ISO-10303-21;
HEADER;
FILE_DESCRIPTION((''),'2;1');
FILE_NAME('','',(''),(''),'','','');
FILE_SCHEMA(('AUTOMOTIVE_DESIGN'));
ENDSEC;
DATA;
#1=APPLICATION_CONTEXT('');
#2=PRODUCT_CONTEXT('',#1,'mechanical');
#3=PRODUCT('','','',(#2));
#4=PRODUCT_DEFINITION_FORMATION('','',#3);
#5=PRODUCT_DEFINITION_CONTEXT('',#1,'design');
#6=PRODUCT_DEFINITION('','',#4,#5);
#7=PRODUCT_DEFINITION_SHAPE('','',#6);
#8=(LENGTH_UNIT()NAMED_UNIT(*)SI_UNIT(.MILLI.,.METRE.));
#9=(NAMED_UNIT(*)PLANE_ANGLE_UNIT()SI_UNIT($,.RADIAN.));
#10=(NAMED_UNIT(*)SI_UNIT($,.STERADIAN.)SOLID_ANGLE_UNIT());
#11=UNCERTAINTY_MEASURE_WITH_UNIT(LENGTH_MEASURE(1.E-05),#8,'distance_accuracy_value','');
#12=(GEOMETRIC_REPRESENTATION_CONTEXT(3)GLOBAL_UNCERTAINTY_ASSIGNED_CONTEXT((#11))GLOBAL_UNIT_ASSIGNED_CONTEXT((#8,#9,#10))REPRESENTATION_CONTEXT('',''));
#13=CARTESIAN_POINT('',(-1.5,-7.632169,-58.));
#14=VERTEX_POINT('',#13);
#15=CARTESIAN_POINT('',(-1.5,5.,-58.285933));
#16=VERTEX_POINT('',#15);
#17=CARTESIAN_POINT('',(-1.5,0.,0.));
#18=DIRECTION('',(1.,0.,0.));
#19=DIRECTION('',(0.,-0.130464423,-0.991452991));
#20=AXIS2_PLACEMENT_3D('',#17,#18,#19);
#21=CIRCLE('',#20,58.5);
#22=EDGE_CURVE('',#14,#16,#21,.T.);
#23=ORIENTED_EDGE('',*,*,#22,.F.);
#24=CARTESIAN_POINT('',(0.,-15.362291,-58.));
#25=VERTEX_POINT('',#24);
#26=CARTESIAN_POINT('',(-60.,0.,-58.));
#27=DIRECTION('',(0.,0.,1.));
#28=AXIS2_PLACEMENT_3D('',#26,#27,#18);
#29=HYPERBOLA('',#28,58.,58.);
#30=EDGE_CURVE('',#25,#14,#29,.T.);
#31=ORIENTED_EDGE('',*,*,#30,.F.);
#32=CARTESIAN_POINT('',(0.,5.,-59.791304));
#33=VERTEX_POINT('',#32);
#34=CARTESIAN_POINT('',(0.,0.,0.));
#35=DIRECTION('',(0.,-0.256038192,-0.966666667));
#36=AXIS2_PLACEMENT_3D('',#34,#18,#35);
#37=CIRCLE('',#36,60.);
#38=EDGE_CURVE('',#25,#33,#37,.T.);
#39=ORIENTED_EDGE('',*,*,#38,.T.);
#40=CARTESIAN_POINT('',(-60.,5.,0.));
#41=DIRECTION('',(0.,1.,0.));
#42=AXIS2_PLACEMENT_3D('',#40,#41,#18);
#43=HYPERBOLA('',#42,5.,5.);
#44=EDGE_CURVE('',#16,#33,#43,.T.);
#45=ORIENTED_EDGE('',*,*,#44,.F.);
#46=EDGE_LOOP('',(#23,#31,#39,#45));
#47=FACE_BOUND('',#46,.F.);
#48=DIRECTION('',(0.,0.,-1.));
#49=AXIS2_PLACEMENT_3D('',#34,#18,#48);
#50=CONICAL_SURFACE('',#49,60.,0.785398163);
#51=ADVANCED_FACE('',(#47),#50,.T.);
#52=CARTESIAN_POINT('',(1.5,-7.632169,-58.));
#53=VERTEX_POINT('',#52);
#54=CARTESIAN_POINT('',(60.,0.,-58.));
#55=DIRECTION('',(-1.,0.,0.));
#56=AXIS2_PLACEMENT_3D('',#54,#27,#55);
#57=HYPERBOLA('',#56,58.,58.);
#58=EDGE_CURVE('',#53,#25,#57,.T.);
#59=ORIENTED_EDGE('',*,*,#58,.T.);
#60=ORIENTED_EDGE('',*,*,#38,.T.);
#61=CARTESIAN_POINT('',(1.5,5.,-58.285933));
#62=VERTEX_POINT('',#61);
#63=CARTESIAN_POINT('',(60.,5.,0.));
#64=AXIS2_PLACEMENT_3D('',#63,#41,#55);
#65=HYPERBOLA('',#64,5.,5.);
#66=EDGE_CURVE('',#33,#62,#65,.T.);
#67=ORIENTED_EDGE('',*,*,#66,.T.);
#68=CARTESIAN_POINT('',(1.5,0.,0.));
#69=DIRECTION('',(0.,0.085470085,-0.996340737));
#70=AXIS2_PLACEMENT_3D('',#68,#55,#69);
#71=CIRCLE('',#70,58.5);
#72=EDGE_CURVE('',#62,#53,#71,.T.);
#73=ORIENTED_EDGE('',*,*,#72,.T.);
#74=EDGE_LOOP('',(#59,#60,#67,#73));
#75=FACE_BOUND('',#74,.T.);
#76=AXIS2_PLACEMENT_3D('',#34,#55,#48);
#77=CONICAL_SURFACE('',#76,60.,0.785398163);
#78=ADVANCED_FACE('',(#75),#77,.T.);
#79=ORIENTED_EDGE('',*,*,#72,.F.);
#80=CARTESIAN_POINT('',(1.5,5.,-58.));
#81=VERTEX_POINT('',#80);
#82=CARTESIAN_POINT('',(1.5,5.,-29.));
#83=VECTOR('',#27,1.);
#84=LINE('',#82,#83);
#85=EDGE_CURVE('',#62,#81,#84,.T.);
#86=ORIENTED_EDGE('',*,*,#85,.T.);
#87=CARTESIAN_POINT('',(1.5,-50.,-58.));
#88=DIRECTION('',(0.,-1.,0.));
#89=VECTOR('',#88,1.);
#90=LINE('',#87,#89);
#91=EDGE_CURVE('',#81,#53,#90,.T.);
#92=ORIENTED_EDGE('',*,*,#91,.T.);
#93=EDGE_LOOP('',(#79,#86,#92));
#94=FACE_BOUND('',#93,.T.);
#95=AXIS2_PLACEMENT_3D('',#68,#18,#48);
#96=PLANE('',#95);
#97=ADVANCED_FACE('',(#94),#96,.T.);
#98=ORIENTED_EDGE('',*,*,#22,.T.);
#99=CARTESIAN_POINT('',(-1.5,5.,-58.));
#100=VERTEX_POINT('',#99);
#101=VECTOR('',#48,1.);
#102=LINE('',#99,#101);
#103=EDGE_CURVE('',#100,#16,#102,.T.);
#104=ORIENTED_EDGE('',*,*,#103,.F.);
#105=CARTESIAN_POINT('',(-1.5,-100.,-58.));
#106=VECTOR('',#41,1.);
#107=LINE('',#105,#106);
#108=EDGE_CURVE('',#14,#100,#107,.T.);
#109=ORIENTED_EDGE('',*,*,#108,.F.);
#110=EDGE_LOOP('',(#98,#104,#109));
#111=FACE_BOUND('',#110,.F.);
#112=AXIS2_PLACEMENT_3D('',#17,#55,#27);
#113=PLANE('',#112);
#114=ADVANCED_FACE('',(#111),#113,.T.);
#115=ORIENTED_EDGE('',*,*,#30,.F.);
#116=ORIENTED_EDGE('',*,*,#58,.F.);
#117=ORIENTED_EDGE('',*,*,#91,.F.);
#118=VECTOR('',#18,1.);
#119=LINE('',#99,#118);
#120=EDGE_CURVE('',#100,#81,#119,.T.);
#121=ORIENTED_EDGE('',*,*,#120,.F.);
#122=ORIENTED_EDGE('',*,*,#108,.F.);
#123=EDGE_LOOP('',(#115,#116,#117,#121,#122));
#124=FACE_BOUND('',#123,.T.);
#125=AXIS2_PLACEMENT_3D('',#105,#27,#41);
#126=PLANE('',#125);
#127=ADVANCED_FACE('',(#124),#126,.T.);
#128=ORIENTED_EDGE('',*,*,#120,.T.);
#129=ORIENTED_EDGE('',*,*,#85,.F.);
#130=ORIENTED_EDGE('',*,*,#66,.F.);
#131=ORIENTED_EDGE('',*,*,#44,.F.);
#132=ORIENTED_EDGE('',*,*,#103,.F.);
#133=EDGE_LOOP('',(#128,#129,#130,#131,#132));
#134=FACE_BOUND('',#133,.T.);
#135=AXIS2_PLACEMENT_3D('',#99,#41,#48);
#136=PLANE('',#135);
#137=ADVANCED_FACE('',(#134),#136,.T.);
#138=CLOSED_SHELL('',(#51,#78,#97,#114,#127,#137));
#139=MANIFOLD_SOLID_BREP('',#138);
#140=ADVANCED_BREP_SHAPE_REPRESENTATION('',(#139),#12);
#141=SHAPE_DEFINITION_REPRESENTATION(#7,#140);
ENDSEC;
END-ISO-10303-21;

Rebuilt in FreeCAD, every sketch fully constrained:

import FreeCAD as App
import Part
import Sketcher
Q = App.Units.Quantity

doc = App.newDocument("Part")
body = doc.addObject("PartDesign::Body", "Body")

sketch1 = body.newObject("Sketcher::SketchObject", "Sketch")
sketch1.AttachmentSupport = (doc.getObject("XZ_Plane"), [""])
sketch1.MapMode = "FlatFace"
sketch1.addGeometry([
    Part.LineSegment(App.Vector(0, 0, 0), App.Vector(0, -60, 0)),
    Part.LineSegment(App.Vector(0, -60, 0), App.Vector(1.5, -58.5, 0)),
    Part.LineSegment(App.Vector(1.5, -58.5, 0), App.Vector(1.5, 0, 0)),
    Part.LineSegment(App.Vector(1.5, 0, 0), App.Vector(0, 0, 0)),
], False)
sketch1.addConstraint([
    Sketcher.Constraint("Coincident", 0, 2, 1, 1),
    Sketcher.Constraint("Coincident", 1, 2, 2, 1),
    Sketcher.Constraint("Coincident", 2, 2, 3, 1),
    Sketcher.Constraint("Coincident", 3, 2, 0, 1),
    Sketcher.Constraint("Vertical", 0),
    Sketcher.Constraint("Vertical", 2),
    Sketcher.Constraint("Horizontal", 3),
    Sketcher.Constraint("Coincident", 3, 2, -1, 1),
    Sketcher.Constraint("DistanceY", 0, 2, 0, 1, Q("60 mm")),
    Sketcher.Constraint("Angle", 1, Q("45 deg")),
    Sketcher.Constraint("DistanceX", 3, 2, 3, 1, Q("1.5 mm")),
])
revolution = body.newObject("PartDesign::Revolution", "Revolution")
revolution.Profile = sketch1
revolution.ReferenceAxis = (sketch1, ["H_Axis"])
revolution.Angle = 360
body2 = doc.addObject("PartDesign::Body", "Body001")
doc.recompute()

mirroring = doc.addObject("Part::Mirroring", "Mirroring")
mirroring.Source = body
mirroring.Base = App.Vector(0, 0, 0)
mirroring.Normal = App.Vector(1, 0, 0)
body2.BaseFeature = mirroring
doc.recompute()

boolean = body2.newObject("PartDesign::Boolean", "Boolean")
boolean.Type = "Fuse"
boolean.addObjects([body])

sketch2 = body2.newObject("Sketcher::SketchObject", "Sketch001")
sketch2.AttachmentSupport = (doc.getObject("YZ_Plane001"), [""])
sketch2.MapMode = "FlatFace"
sketch2.AttachmentOffset = App.Placement(App.Vector(0, 0, -1.5), App.Rotation())
sketch2.addGeometry([
    Part.LineSegment(App.Vector(-100, 100, 0), App.Vector(100, 100, 0)),
    Part.LineSegment(App.Vector(100, 100, 0), App.Vector(100, -66, 0)),
    Part.LineSegment(App.Vector(100, -66, 0), App.Vector(5, -66, 0)),
    Part.LineSegment(App.Vector(5, -66, 0), App.Vector(5, -58, 0)),
    Part.LineSegment(App.Vector(5, -58, 0), App.Vector(-100, -58, 0)),
    Part.LineSegment(App.Vector(-100, -58, 0), App.Vector(-100, 100, 0)),
], False)
sketch2.addConstraint([
    Sketcher.Constraint("Coincident", 0, 2, 1, 1),
    Sketcher.Constraint("Coincident", 1, 2, 2, 1),
    Sketcher.Constraint("Coincident", 2, 2, 3, 1),
    Sketcher.Constraint("Coincident", 3, 2, 4, 1),
    Sketcher.Constraint("Coincident", 4, 2, 5, 1),
    Sketcher.Constraint("Coincident", 5, 2, 0, 1),
    Sketcher.Constraint("Horizontal", 0),
    Sketcher.Constraint("Vertical", 1),
    Sketcher.Constraint("Horizontal", 2),
    Sketcher.Constraint("Vertical", 3),
    Sketcher.Constraint("Horizontal", 4),
    Sketcher.Constraint("Vertical", 5),
    Sketcher.Constraint("DistanceX", 0, 1, 0, 2, Q("200 mm")),
    Sketcher.Constraint("DistanceX", 2, 2, 2, 1, Q("95 mm")),
    Sketcher.Constraint("DistanceY", 1, 2, 1, 1, Q("166 mm")),
    Sketcher.Constraint("DistanceY", 3, 1, 3, 2, Q("8 mm")),
    Sketcher.Constraint("DistanceX", -1, 1, 0, 2, Q("100 mm")),
    Sketcher.Constraint("DistanceY", -1, 1, 0, 2, Q("100 mm")),
])
pocket1 = body2.newObject("PartDesign::Pocket", "Pocket")
pocket1.Profile = sketch2
pocket1.Length = 5
pocket1.Reversed = True
mirroring.Visibility = False

doc.recompute()
